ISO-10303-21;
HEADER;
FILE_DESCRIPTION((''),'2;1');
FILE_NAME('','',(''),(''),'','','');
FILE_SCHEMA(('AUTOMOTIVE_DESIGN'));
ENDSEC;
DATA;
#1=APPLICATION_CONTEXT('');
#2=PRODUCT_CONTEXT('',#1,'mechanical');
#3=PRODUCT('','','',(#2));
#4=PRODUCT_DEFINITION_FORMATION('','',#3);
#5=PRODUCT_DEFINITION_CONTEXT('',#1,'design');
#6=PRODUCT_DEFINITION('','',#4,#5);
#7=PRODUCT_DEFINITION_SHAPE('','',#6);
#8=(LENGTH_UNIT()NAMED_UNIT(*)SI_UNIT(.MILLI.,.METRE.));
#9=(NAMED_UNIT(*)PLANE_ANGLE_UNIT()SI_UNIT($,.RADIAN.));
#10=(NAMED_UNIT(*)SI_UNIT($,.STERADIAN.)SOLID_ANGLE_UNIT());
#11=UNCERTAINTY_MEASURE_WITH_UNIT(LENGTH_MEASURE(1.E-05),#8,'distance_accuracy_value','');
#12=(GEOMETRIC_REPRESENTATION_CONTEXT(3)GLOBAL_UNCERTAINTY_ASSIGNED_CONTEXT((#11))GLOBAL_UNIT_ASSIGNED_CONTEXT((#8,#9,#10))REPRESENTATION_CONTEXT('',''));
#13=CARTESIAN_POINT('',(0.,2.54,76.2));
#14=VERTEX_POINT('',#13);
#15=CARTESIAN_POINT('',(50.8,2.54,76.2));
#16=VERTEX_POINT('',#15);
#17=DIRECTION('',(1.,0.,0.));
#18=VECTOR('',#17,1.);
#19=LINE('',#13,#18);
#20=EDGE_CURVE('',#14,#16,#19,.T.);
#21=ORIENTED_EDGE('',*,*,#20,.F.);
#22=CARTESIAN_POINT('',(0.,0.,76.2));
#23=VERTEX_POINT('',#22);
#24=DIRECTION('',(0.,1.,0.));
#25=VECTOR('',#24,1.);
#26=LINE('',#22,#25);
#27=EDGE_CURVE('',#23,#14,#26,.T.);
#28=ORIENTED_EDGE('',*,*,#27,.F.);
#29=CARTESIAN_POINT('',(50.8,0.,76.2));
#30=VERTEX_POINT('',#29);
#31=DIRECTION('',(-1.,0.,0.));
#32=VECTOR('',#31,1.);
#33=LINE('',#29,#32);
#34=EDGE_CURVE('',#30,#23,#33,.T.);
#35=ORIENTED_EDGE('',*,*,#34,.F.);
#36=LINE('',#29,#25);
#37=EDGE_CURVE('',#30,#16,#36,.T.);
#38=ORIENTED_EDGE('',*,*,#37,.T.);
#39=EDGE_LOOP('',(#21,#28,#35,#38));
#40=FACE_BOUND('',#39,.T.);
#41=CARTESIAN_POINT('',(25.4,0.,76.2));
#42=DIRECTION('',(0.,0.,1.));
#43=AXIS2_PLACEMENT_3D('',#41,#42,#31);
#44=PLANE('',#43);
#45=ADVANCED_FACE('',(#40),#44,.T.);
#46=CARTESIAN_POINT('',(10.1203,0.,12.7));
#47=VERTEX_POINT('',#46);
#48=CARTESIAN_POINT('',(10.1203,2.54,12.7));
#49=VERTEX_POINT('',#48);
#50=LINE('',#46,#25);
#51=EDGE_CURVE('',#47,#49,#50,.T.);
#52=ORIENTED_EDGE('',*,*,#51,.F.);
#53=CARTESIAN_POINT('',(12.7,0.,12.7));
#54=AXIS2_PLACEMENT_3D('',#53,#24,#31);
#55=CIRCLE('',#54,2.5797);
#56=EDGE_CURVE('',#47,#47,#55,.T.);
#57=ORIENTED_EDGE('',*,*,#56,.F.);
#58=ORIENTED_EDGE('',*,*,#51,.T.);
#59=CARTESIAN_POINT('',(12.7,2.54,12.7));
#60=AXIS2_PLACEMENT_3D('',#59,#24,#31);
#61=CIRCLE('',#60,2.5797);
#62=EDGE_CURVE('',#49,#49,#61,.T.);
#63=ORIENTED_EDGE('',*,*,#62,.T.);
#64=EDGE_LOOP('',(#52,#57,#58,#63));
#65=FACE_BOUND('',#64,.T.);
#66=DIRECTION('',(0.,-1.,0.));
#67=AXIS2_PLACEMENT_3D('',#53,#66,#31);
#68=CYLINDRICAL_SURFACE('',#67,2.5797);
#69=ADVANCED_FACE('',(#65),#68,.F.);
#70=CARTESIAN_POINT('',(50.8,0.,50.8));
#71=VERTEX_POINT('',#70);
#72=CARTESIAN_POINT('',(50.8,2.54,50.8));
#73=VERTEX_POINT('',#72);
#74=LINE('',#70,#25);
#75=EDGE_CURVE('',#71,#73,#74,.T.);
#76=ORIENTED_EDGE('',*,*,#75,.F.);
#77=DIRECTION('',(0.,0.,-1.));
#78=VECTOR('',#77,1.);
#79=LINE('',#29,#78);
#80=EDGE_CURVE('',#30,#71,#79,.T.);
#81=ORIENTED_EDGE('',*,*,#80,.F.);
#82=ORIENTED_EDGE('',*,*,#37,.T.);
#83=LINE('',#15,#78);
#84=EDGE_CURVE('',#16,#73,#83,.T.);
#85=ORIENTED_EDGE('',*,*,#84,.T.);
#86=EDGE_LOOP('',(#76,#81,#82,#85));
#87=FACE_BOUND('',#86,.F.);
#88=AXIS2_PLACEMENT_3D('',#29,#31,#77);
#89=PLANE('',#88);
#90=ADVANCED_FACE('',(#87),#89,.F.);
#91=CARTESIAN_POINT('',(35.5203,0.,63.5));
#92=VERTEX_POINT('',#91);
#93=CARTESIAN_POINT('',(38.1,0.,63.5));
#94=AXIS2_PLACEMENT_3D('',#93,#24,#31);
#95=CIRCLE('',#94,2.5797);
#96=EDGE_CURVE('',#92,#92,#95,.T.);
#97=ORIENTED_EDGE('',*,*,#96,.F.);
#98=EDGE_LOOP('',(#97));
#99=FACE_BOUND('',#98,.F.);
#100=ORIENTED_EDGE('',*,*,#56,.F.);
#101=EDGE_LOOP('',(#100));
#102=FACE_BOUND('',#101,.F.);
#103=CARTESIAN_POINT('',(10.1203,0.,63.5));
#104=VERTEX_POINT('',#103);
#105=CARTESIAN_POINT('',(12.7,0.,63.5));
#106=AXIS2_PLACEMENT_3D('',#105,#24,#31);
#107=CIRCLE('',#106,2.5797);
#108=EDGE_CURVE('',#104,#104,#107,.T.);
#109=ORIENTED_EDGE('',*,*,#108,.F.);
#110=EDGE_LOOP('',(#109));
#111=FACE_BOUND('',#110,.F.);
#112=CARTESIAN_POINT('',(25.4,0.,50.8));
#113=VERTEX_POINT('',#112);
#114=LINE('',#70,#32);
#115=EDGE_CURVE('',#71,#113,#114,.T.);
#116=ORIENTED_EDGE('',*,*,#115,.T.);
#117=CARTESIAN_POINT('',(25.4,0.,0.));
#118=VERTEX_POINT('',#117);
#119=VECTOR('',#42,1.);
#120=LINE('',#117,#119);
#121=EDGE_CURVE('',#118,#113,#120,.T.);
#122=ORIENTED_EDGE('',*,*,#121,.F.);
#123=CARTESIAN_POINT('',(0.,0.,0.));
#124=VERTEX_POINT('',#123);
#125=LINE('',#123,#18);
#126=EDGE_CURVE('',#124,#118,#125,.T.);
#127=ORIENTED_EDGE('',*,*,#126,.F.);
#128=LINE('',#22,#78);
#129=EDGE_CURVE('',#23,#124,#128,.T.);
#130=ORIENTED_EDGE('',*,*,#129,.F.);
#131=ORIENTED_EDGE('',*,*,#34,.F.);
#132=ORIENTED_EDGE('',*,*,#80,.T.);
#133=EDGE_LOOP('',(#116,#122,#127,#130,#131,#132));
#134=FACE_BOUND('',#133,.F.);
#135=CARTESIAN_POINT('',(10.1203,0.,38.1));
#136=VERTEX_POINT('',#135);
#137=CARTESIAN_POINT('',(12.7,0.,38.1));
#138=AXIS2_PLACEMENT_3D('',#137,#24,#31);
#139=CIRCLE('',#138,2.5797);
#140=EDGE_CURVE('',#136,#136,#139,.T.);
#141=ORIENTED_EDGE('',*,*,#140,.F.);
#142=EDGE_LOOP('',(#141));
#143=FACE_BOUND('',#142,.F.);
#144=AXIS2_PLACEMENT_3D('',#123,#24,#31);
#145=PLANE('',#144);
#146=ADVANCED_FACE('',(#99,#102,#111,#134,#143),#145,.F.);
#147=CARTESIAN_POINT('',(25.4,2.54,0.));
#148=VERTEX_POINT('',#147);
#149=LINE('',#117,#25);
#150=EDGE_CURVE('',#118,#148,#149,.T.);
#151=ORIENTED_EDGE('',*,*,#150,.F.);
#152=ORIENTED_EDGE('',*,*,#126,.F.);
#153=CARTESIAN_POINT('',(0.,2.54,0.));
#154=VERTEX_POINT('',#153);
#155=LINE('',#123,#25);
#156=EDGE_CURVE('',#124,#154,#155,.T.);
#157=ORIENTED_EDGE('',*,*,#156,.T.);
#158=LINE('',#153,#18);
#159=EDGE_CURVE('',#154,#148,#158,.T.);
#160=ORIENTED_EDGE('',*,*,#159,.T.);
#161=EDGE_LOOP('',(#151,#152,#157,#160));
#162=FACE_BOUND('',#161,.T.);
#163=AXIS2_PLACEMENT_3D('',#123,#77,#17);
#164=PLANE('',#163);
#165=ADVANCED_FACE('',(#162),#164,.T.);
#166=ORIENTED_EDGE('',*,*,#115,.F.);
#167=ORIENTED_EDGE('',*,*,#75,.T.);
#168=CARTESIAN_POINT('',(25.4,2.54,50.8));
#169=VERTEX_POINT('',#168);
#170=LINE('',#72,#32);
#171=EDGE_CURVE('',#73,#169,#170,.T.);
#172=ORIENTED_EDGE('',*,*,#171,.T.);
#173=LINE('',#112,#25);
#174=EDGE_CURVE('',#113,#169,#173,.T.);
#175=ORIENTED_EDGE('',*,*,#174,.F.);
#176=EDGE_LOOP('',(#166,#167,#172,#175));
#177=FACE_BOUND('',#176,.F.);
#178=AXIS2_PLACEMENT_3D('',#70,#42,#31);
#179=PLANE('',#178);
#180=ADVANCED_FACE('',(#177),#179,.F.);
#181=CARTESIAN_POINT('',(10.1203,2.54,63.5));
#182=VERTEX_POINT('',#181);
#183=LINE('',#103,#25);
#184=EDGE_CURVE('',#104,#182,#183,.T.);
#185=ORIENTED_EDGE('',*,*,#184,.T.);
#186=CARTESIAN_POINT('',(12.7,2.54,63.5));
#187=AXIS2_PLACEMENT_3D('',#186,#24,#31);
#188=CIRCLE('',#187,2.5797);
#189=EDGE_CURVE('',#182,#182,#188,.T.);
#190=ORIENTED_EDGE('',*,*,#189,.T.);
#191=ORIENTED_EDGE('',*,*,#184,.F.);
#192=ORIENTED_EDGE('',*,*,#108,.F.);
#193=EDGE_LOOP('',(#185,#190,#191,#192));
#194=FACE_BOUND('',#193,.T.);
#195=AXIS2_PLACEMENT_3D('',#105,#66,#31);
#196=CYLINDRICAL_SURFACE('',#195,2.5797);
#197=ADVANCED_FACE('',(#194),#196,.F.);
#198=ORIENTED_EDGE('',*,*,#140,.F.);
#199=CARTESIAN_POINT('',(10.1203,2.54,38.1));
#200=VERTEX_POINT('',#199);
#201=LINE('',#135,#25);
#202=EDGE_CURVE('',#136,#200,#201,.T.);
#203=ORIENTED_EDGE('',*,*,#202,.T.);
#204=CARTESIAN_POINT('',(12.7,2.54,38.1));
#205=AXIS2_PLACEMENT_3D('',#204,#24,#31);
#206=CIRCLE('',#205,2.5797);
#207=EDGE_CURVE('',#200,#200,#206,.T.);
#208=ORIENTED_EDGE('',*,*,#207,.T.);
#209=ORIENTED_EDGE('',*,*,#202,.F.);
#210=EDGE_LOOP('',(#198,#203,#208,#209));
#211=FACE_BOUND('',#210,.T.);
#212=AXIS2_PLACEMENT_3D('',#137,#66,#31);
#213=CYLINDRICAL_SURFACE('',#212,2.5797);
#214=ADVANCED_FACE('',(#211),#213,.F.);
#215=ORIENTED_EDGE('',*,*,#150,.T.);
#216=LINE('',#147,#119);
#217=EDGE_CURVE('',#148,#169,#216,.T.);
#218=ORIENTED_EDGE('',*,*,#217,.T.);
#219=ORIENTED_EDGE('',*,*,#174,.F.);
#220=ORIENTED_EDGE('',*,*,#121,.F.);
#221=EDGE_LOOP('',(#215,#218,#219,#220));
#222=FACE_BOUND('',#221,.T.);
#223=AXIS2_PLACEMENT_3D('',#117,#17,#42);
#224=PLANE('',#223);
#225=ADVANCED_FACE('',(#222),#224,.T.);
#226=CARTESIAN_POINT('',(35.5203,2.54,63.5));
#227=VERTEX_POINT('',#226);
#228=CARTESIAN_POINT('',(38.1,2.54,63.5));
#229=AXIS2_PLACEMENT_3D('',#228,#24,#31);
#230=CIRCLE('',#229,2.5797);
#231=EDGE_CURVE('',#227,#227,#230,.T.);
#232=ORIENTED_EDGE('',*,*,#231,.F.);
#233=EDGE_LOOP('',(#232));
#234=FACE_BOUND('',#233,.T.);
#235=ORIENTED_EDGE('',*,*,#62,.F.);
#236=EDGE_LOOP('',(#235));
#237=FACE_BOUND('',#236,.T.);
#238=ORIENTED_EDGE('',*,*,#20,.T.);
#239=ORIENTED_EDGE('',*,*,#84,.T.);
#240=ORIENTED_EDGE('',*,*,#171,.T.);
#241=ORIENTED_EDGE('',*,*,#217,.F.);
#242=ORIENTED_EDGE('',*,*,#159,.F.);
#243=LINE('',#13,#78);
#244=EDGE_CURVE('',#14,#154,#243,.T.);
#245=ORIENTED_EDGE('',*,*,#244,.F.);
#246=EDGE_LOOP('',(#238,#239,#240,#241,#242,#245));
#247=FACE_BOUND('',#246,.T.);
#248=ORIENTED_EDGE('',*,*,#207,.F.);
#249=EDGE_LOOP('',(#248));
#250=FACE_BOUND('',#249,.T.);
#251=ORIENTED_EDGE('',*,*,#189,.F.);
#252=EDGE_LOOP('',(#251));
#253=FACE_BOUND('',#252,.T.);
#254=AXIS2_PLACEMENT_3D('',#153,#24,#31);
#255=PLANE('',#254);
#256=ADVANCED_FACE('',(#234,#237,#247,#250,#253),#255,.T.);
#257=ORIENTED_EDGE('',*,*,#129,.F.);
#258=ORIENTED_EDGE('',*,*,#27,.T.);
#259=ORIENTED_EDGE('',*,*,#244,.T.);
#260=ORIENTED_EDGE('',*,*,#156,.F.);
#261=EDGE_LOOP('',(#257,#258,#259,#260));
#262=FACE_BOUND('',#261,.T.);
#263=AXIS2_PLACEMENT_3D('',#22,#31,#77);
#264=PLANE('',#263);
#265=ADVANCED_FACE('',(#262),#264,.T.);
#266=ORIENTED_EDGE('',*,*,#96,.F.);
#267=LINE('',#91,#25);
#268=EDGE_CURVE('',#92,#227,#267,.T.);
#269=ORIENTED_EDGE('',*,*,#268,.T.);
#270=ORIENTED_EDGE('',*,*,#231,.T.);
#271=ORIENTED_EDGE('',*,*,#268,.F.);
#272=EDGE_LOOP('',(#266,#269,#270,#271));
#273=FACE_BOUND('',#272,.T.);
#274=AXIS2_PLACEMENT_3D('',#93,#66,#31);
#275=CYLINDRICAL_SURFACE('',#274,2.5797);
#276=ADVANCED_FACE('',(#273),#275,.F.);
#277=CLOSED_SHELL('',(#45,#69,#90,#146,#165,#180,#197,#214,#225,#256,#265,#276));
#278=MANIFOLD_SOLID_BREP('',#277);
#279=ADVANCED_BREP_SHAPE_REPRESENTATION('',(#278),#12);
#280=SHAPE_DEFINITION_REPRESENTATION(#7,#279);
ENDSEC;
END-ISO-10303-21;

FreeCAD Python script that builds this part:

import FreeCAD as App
import Part
import Sketcher
from FreeCAD import Vector
Q = App.Units.Quantity


def add_polygon(sketch, points):
    """Adds a closed chain of lines whose ends are joined by coincident constraints."""
    first, n = sketch.GeometryCount, len(points)
    for a, b in zip(points, points[1:] + points[:1]):
        sketch.addGeometry(Part.LineSegment(App.Vector(*a, 0), App.Vector(*b, 0)), False)
    for i in range(n):
        sketch.addConstraint(Sketcher.Constraint("Coincident", first + i, 2, first + (i + 1) % n, 1))

doc = App.newDocument("Part")
params = doc.addObject("Spreadsheet::Sheet", "Params")
for row, (alias, value) in enumerate([
    ("sketch1_width", "1 in"),
    ("sketch1_diameter", "0.203126 in"),
    ("pad1_length", "0.1 in"),
], start=1):
    params.set(f"A{row}", alias)
    params.set(f"B{row}", "=" + value)
    params.setAlias(f"B{row}", alias)

body = doc.addObject("PartDesign::Body", "Body")

sketch1 = doc.addObject("Sketcher::SketchObject", "Sketch")
body.addObject(sketch1)
sketch1.AttachmentSupport = (doc.XZ_Plane, [""])
sketch1.MapMode = "FlatFace"
add_polygon(sketch1, [(25.4, 0), (0, 0), (0, 76.2), (50.8, 76.2), (50.8, 50.8), (25.4, 50.8)])
sketch1.addGeometry(Part.Circle(Vector(12.7, 12.7, 0), Vector(0, 0, 1), 2.6), False)
sketch1.addGeometry(Part.Circle(Vector(12.7, 38.1, 0), Vector(0, 0, 1), 2.6), False)
sketch1.addGeometry(Part.Circle(Vector(12.7, 63.5, 0), Vector(0, 0, 1), 2.6), False)
sketch1.addGeometry(Part.Circle(Vector(38.1, 63.5, 0), Vector(0, 0, 1), 2.6), False)
sketch1.addConstraint(Sketcher.Constraint("Horizontal", 0))
sketch1.addConstraint(Sketcher.Constraint("Vertical", 1))
sketch1.addConstraint(Sketcher.Constraint("Horizontal", 2))
sketch1.addConstraint(Sketcher.Constraint("Vertical", 3))
sketch1.addConstraint(Sketcher.Constraint("Horizontal", 4))
sketch1.addConstraint(Sketcher.Constraint("Vertical", 5))
sketch1.addConstraint(Sketcher.Constraint("Coincident", 0, 2, -1, 1))
sketch1.addConstraint(Sketcher.Constraint("Equal", 6, 7))
sketch1.addConstraint(Sketcher.Constraint("Equal", 7, 8))
sketch1.addConstraint(Sketcher.Constraint("Equal", 8, 9))
sketch1.addConstraint(Sketcher.Constraint("Horizontal", 8, 3, 9, 3))
sketch1.addConstraint(Sketcher.Constraint("Vertical", 6, 3, 7, 3))
sketch1.addConstraint(Sketcher.Constraint("Vertical", 7, 3, 8, 3))
sketch1.addConstraint(Sketcher.Constraint("Equal", 0, 4))
sketch1.addConstraint(Sketcher.Constraint("Equal", 4, 3))
sketch1.addConstraint(Sketcher.Constraint("Equal", 2, 5))
sketch1.addConstraint(Sketcher.Constraint("DistanceX", 0, 2, 0, 1, Q("1 in")))
sketch1.addConstraint(Sketcher.Constraint("Diameter", 6, Q("0.203126 in")))
sketch1.addConstraint(Sketcher.Constraint("DistanceY", 6, 3, 7, 3, Q("1 in")))
sketch1.addConstraint(Sketcher.Constraint("DistanceY", 7, 3, 8, 3, Q("1 in")))
sketch1.addConstraint(Sketcher.Constraint("DistanceX", 8, 3, 9, 3, Q("1 in")))
sketch1.addConstraint(Sketcher.Constraint("DistanceX", -1, 1, 6, 3, Q("0.5 in")))
sketch1.addConstraint(Sketcher.Constraint("DistanceY", -1, 1, 6, 3, Q("0.5 in")))
sketch1.setExpression("Constraints[22]", "Params.sketch1_width")
sketch1.setExpression("Constraints[23]", "Params.sketch1_diameter")
pad1 = doc.addObject("PartDesign::Pad", "Pad")
body.addObject(pad1)
pad1.Profile = sketch1
pad1.setExpression("Length", "Params.pad1_length")
pad1.Reversed = True

doc.recompute()
